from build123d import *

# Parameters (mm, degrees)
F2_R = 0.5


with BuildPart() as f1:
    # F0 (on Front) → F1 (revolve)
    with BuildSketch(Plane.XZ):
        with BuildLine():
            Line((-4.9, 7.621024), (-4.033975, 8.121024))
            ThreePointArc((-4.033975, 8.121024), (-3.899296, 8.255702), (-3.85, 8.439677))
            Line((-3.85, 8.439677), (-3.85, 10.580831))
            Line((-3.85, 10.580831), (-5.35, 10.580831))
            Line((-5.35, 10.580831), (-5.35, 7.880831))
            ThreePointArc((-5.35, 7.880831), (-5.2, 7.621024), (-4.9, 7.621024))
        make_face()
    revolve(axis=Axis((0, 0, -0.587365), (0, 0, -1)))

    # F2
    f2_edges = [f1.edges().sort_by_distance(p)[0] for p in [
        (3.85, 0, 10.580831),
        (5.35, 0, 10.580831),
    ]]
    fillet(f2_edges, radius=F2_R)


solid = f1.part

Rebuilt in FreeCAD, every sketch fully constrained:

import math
import FreeCAD as App
import Part
import Sketcher
from FreeCAD import Vector
Q = App.Units.Quantity


def edges_at(feature, points):
    """Names of the edges that pass closest to the given points."""
    edges = feature.Shape.Edges
    near = lambda p: min(range(len(edges)), key=lambda i: edges[i].distToShape(Part.Vertex(*p))[0])
    return sorted({f"Edge{near(p) + 1}" for p in points})

doc = App.newDocument("Part")
params = doc.addObject("Spreadsheet::Sheet", "Params")
for row, (alias, value) in enumerate([
    ("sketch1_radius", "0.3 mm"),
    ("sketch1_length", "1 mm"),
    ("sketch1_width", "1.5 mm"),
    ("sketch1_height", "2.7 mm"),
    ("revolution_angle", "360 deg"),
    ("fillet_radius", "0.5 mm"),
], start=1):
    params.set(f"A{row}", alias)
    params.set(f"B{row}", "=" + value)
    params.setAlias(f"B{row}", alias)

body = doc.addObject("PartDesign::Body", "Body")

sketch1 = body.newObject("Sketcher::SketchObject", "Sketch")
sketch1.AttachmentSupport = (doc.getObject("XZ_Plane"), [""])
sketch1.MapMode = "FlatFace"
sketch1.addGeometry(Part.LineSegment(Vector(-4.9, 7.62, 0), Vector(-4.03, 8.12, 0)), False)
sketch1.addGeometry(Part.ArcOfCircle(Part.Circle(Vector(-4.22, 8.44, 0), Vector(0, 0, 1), 0.37), math.radians(-60), math.radians(0)), False)
sketch1.addGeometry(Part.LineSegment(Vector(-3.85, 8.44, 0), Vector(-3.85, 10.58, 0)), False)
sketch1.addGeometry(Part.LineSegment(Vector(-3.85, 10.58, 0), Vector(-5.35, 10.58, 0)), False)
sketch1.addGeometry(Part.LineSegment(Vector(-5.35, 10.58, 0), Vector(-5.35, 7.88, 0)), False)
sketch1.addGeometry(Part.ArcOfCircle(Part.Circle(Vector(-5.05, 7.88, 0), Vector(0, 0, 1), 0.3), math.radians(-180), math.radians(-60)), False)
sketch1.addConstraint(Sketcher.Constraint("Coincident", 0, 2, 1, 1))
sketch1.addConstraint(Sketcher.Constraint("Coincident", 1, 2, 2, 1))
sketch1.addConstraint(Sketcher.Constraint("Coincident", 2, 2, 3, 1))
sketch1.addConstraint(Sketcher.Constraint("Coincident", 3, 2, 4, 1))
sketch1.addConstraint(Sketcher.Constraint("Coincident", 4, 2, 5, 1))
sketch1.addConstraint(Sketcher.Constraint("Tangent", 5, 2, 0, 1))
sketch1.addConstraint(Sketcher.Constraint("Vertical", 2))
sketch1.addConstraint(Sketcher.Constraint("Horizontal", 3))
sketch1.addConstraint(Sketcher.Constraint("Vertical", 4))
sketch1.addConstraint(Sketcher.Constraint("Horizontal", 5, 3, 4, 2))
sketch1.addConstraint(Sketcher.Constraint("Radius", 5, Q("0.3 mm")))
sketch1.addConstraint(Sketcher.Constraint("Angle", 0, Q("30.000012 deg")))
sketch1.addConstraint(Sketcher.Constraint("Distance", 0, Q("1 mm")))
sketch1.addConstraint(Sketcher.Constraint("DistanceX", 3, 2, 3, 1, Q("1.5 mm")))
sketch1.addConstraint(Sketcher.Constraint("DistanceY", 4, 2, 4, 1, Q("2.7 mm")))
sketch1.addConstraint(Sketcher.Constraint("DistanceX", 5, 2, -1, 1, Q("4.9 mm")))
sketch1.addConstraint(Sketcher.Constraint("Radius", 1, Q("0.367947 mm")))
sketch1.addConstraint(Sketcher.Constraint("DistanceY", 2, 1, 2, 2, Q("2.141154 mm")))
sketch1.addConstraint(Sketcher.Constraint("DistanceY", -1, 1, 5, 3, Q("7.880832 mm")))
sketch1.setExpression("Constraints[10]", "Params.sketch1_radius")
sketch1.setExpression("Constraints[12]", "Params.sketch1_length")
sketch1.setExpression("Constraints[13]", "Params.sketch1_width")
sketch1.setExpression("Constraints[14]", "Params.sketch1_height")
revolution = body.newObject("PartDesign::Revolution", "Revolution")
revolution.Profile = sketch1
revolution.ReferenceAxis = (sketch1, ["V_Axis"])
revolution.setExpression("Angle", "Params.revolution_angle")
doc.recompute()

fillet = body.newObject("PartDesign::Fillet", "Fillet")
fillet.Base = (revolution, edges_at(revolution, [(3.85, 0, 10.581), (5.35, 0, 10.581)]))
fillet.setExpression("Radius", "Params.fillet_radius")

doc.recompute()
